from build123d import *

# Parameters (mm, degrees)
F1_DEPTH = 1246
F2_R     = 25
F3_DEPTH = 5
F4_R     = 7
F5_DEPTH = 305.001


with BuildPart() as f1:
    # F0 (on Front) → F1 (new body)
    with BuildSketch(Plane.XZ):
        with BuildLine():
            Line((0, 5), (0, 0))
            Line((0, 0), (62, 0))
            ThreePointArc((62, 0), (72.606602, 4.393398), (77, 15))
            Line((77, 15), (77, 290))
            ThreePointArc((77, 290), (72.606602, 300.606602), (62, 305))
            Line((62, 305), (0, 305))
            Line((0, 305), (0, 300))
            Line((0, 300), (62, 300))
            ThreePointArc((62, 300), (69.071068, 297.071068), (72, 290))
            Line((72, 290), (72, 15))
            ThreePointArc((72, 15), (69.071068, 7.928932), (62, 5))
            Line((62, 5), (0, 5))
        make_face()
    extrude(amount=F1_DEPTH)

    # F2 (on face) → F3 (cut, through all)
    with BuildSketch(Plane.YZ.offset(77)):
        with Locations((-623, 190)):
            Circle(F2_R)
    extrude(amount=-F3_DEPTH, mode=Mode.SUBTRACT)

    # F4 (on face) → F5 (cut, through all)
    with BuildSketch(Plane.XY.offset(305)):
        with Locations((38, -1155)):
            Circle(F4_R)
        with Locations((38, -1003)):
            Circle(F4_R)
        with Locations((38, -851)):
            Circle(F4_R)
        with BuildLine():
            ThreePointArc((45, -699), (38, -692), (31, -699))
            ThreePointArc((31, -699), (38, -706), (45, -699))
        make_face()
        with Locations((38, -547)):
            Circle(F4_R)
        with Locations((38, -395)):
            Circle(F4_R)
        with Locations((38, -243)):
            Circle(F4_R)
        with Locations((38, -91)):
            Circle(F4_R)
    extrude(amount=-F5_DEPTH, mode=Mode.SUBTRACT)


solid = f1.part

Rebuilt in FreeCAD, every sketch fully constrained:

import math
import FreeCAD as App
import Part
import Sketcher
from FreeCAD import Vector

doc = App.newDocument("Part")
body = doc.addObject("PartDesign::Body", "Body")

# Sketch on XZ plane
sketch1 = body.newObject("Sketcher::SketchObject", "Sketch")
sketch1.AttachmentSupport = (doc.getObject("XZ_Plane"), [""])
sketch1.MapMode = "FlatFace"
sketch1.addGeometry([
    Part.LineSegment(Vector(0, 5, 0), Vector(0, 0, 0)),  # 0
    Part.LineSegment(Vector(0, 0, 0), Vector(62, 0, 0)),  # 1
    Part.ArcOfCircle(Part.Circle(Vector(62, 15, 0), Vector(0, 0, 1), 15), math.radians(-90), math.radians(0)),  # 2
    Part.LineSegment(Vector(77, 15, 0), Vector(77, 290, 0)),  # 3
    Part.ArcOfCircle(Part.Circle(Vector(62, 290, 0), Vector(0, 0, 1), 15), math.radians(0), math.radians(90)),  # 4
    Part.LineSegment(Vector(62, 305, 0), Vector(0, 305, 0)),  # 5
    Part.LineSegment(Vector(0, 305, 0), Vector(0, 300, 0)),  # 6
    Part.LineSegment(Vector(0, 300, 0), Vector(62, 300, 0)),  # 7
    Part.ArcOfCircle(Part.Circle(Vector(62, 290, 0), Vector(0, 0, 1), 10), math.radians(0), math.radians(90)),  # 8
    Part.LineSegment(Vector(72, 290, 0), Vector(72, 15, 0)),  # 9
    Part.ArcOfCircle(Part.Circle(Vector(62, 15, 0), Vector(0, 0, 1), 10), math.radians(-90), math.radians(0)),  # 10
    Part.LineSegment(Vector(62, 5, 0), Vector(0, 5, 0)),  # 11
], False)
sketch1.addConstraint([
    Sketcher.Constraint("Coincident", 0, 2, 1, 1),
    Sketcher.Constraint("Tangent", 1, 2, 2, 1),
    Sketcher.Constraint("Tangent", 2, 2, 3, 1),
    Sketcher.Constraint("Tangent", 3, 2, 4, 1),
    Sketcher.Constraint("Tangent", 4, 2, 5, 1),
    Sketcher.Constraint("Coincident", 5, 2, 6, 1),
    Sketcher.Constraint("Coincident", 6, 2, 7, 1),
    Sketcher.Constraint("Tangent", 7, 2, 8, 2),
    Sketcher.Constraint("Tangent", 8, 1, 9, 1),
    Sketcher.Constraint("Tangent", 9, 2, 10, 2),
    Sketcher.Constraint("Tangent", 10, 1, 11, 1),
    Sketcher.Constraint("Coincident", 11, 2, 0, 1),
    Sketcher.Constraint("Vertical", 0),
    Sketcher.Constraint("Horizontal", 1),
    Sketcher.Constraint("Vertical", 3),
    Sketcher.Constraint("Horizontal", 5),
    Sketcher.Constraint("Vertical", 6),
    Sketcher.Constraint("Horizontal", 7),
    Sketcher.Constraint("Vertical", 9),
    Sketcher.Constraint("Horizontal", 11),
    Sketcher.Constraint("Coincident", 0, 2, -1, 1),
    Sketcher.Constraint("Coincident", 8, 3, 4, 3),
    Sketcher.Constraint("Coincident", 10, 3, 2, 3),
    Sketcher.Constraint("Equal", 2, 4),
    Sketcher.Constraint("PointOnObject", 5, 2, -2),
    Sketcher.Constraint("Radius", 2, 14.999999),
    Sketcher.Constraint("Radius", 8, 9.999999),
    Sketcher.Constraint("DistanceX", 1, 1, 1, 2, 62.0),
    Sketcher.Constraint("DistanceY", 3, 1, 3, 2, 275.0),
])
pad1 = body.newObject("PartDesign::Pad", "Pad")
pad1.Profile = sketch1
pad1.Length = 1246

# Sketch on YZ plane
sketch2 = body.newObject("Sketcher::SketchObject", "Sketch001")
sketch2.AttachmentSupport = (doc.getObject("YZ_Plane"), [""])
sketch2.MapMode = "FlatFace"
sketch2.AttachmentOffset = App.Placement(Vector(0, 0, 77), App.Rotation())
sketch2.addGeometry(Part.Circle(Vector(-623, 190, 0), Vector(0, 0, 1), 25), False)
sketch2.addConstraint([
    Sketcher.Constraint("Diameter", 0, 50.0),
    Sketcher.Constraint("DistanceX", 0, 3, -1, 1, 623.0),
    Sketcher.Constraint("DistanceY", -1, 1, 0, 3, 190.0),
])
pocket1 = body.newObject("PartDesign::Pocket", "Pocket")
pocket1.Profile = sketch2
pocket1.Type = "ThroughAll"

# Sketch on XY plane
sketch3 = body.newObject("Sketcher::SketchObject", "Sketch002")
sketch3.AttachmentSupport = (doc.getObject("XY_Plane"), [""])
sketch3.MapMode = "FlatFace"
sketch3.AttachmentOffset = App.Placement(Vector(0, 0, 305), App.Rotation())
sketch3.addGeometry([
    Part.Circle(Vector(38, -1155, 0), Vector(0, 0, 1), 7),  # 0
    Part.Circle(Vector(38, -1003, 0), Vector(0, 0, 1), 7),  # 1
    Part.Circle(Vector(38, -851, 0), Vector(0, 0, 1), 7),  # 2
    Part.Circle(Vector(38, -699, 0), Vector(0, 0, 1), 7),  # 3
    Part.Circle(Vector(38, -547, 0), Vector(0, 0, 1), 7),  # 4
    Part.Circle(Vector(38, -395, 0), Vector(0, 0, 1), 7),  # 5
    Part.Circle(Vector(38, -243, 0), Vector(0, 0, 1), 7),  # 6
    Part.Circle(Vector(38, -91, 0), Vector(0, 0, 1), 7),  # 7
], False)
sketch3.addConstraint([
    Sketcher.Constraint("Equal", 0, 1),
    Sketcher.Constraint("Equal", 1, 2),
    Sketcher.Constraint("Equal", 2, 3),
    Sketcher.Constraint("Equal", 3, 4),
    Sketcher.Constraint("Equal", 4, 5),
    Sketcher.Constraint("Equal", 5, 6),
    Sketcher.Constraint("Equal", 6, 7),
    Sketcher.Constraint("Vertical", 0, 3, 1, 3),
    Sketcher.Constraint("Vertical", 1, 3, 2, 3),
    Sketcher.Constraint("Vertical", 2, 3, 3, 3),
    Sketcher.Constraint("Vertical", 3, 3, 4, 3),
    Sketcher.Constraint("Vertical", 4, 3, 5, 3),
    Sketcher.Constraint("Vertical", 5, 3, 6, 3),
    Sketcher.Constraint("Vertical", 6, 3, 7, 3),
    Sketcher.Constraint("Diameter", 0, 14.0),
    Sketcher.Constraint("DistanceX", -1, 1, 0, 3, 38.0),
    Sketcher.Constraint("DistanceY", 0, 3, -1, 1, 1155.0),
    Sketcher.Constraint("DistanceY", 1, 3, -1, 1, 1003.0),
    Sketcher.Constraint("DistanceY", 2, 3, -1, 1, 851.0),
    Sketcher.Constraint("DistanceY", 3, 3, -1, 1, 699.0),
    Sketcher.Constraint("DistanceY", 4, 3, -1, 1, 547.0),
    Sketcher.Constraint("DistanceY", 5, 3, -1, 1, 395.0),
    Sketcher.Constraint("DistanceY", 6, 3, -1, 1, 243.0),
    Sketcher.Constraint("DistanceY", 7, 3, -1, 1, 91.0),
])
pocket2 = body.newObject("PartDesign::Pocket", "Pocket001")
pocket2.Profile = sketch3
pocket2.Type = "ThroughAll"

doc.recompute()
